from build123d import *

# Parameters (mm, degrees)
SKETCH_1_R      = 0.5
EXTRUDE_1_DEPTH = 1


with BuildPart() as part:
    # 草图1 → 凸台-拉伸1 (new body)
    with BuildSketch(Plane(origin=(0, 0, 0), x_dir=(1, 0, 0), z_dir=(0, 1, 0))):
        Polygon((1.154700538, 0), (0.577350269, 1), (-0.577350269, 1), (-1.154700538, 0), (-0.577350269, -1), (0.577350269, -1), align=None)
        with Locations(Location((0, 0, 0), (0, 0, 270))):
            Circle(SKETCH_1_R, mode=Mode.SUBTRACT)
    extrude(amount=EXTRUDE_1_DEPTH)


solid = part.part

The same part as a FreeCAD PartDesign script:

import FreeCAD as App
import Part
import Sketcher
from FreeCAD import Vector
Q = App.Units.Quantity

doc = App.newDocument("Part")
body = doc.addObject("PartDesign::Body", "Body")

# Sketch on XZ plane
sketch1 = doc.addObject("Sketcher::SketchObject", "Sketch")
body.addObject(sketch1)
sketch1.AttachmentSupport = (doc.XZ_Plane, [""])
sketch1.MapMode = "FlatFace"
sketch1.addGeometry(Part.LineSegment(Vector(1.154701, 0, 0), Vector(0.57735, -1, 0)), False)
sketch1.addGeometry(Part.LineSegment(Vector(0.57735, -1, 0), Vector(-0.57735, -1, 0)), False)
sketch1.addGeometry(Part.LineSegment(Vector(-0.57735, -1, 0), Vector(-1.154701, 0, 0)), False)
sketch1.addGeometry(Part.LineSegment(Vector(-1.154701, 0, 0), Vector(-0.57735, 1, 0)), False)
sketch1.addGeometry(Part.LineSegment(Vector(-0.57735, 1, 0), Vector(0.57735, 1, 0)), False)
sketch1.addGeometry(Part.LineSegment(Vector(0.57735, 1, 0), Vector(1.154701, 0, 0)), False)
sketch1.addGeometry(Part.Circle(Vector(0, 0, 0), Vector(0, 0, 1), 0.5), False)
sketch1.addConstraint(Sketcher.Constraint("Coincident", 0, 2, 1, 1))
sketch1.addConstraint(Sketcher.Constraint("Coincident", 1, 2, 2, 1))
sketch1.addConstraint(Sketcher.Constraint("Coincident", 2, 2, 3, 1))
sketch1.addConstraint(Sketcher.Constraint("Coincident", 3, 2, 4, 1))
sketch1.addConstraint(Sketcher.Constraint("Coincident", 4, 2, 5, 1))
sketch1.addConstraint(Sketcher.Constraint("Coincident", 5, 2, 0, 1))
sketch1.addConstraint(Sketcher.Constraint("Horizontal", 1))
sketch1.addConstraint(Sketcher.Constraint("Horizontal", 4))
sketch1.addConstraint(Sketcher.Constraint("Coincident", 6, 3, -1, 1))
sketch1.addConstraint(Sketcher.Constraint("Symmetric", 0, 2, 3, 2, -1, 1))
sketch1.addConstraint(Sketcher.Constraint("Symmetric", 2, 2, 5, 2, -1, 1))
sketch1.addConstraint(Sketcher.Constraint("PointOnObject", 2, 2, -1))
sketch1.addConstraint(Sketcher.Constraint("Parallel", 2, 5))
sketch1.addConstraint(Sketcher.Constraint("Vertical", 1, 2, 3, 2))
sketch1.addConstraint(Sketcher.Constraint("Diameter", 6, Q("1 mm")))
sketch1.addConstraint(Sketcher.Constraint("Angle", 0, Q("-120 deg")))
sketch1.addConstraint(Sketcher.Constraint("DistanceY", 0, 2, -1, 1, Q("1 mm")))
sketch1.addConstraint(Sketcher.Constraint("DistanceX", 1, 2, 1, 1, Q("1.154701 mm")))
pad1 = doc.addObject("PartDesign::Pad", "Pad")
body.addObject(pad1)
pad1.Profile = sketch1
pad1.Length = 1
pad1.Reversed = True

doc.recompute()
